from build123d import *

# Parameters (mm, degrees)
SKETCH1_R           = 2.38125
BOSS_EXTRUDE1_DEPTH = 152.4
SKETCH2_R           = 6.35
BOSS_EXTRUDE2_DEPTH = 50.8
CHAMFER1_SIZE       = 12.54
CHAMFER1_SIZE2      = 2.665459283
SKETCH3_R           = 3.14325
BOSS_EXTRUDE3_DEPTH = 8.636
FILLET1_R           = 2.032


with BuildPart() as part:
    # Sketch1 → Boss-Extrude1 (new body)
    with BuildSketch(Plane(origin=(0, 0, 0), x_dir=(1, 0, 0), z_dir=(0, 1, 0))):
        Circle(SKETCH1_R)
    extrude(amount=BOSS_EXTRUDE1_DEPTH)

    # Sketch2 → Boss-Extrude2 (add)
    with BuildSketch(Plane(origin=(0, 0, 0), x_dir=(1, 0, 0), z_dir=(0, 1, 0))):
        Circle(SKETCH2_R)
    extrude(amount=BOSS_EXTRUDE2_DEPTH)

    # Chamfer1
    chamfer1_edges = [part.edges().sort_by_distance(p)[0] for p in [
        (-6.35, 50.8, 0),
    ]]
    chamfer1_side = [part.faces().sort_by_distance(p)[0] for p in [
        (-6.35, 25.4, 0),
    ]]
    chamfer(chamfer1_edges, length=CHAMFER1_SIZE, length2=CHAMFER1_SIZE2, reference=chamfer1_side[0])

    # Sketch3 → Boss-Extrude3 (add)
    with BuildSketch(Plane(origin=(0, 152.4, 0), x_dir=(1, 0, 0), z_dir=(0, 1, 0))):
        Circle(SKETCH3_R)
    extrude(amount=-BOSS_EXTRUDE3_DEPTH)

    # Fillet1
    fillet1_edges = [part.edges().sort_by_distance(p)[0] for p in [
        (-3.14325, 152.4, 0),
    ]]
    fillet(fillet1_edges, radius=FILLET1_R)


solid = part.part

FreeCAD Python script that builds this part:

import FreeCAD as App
import Part
import Sketcher
from FreeCAD import Vector
Q = App.Units.Quantity


def edges_at(feature, points):
    """Names of the edges that pass closest to the given points."""
    edges = feature.Shape.Edges
    near = lambda p: min(range(len(edges)), key=lambda i: edges[i].distToShape(Part.Vertex(*p))[0])
    return sorted({f"Edge{near(p) + 1}" for p in points})

doc = App.newDocument("Part")
body = doc.addObject("PartDesign::Body", "Body")

sketch1 = body.newObject("Sketcher::SketchObject", "Sketch")
sketch1.AttachmentSupport = (doc.getObject("XZ_Plane"), [""])
sketch1.MapMode = "FlatFace"
sketch1.addGeometry(Part.Circle(Vector(0, 0, 0), Vector(0, 0, 1), 2.38125), False)
sketch1.addConstraint([
    Sketcher.Constraint("Coincident", 0, 3, -1, 1),
    Sketcher.Constraint("Diameter", 0, Q("0.1875 in")),
])
pad1 = body.newObject("PartDesign::Pad", "Pad")
pad1.Profile = sketch1
pad1.Length = Q("6 in")
pad1.Reversed = True

sketch2 = body.newObject("Sketcher::SketchObject", "Sketch001")
sketch2.AttachmentSupport = (doc.getObject("XZ_Plane"), [""])
sketch2.MapMode = "FlatFace"
sketch2.addGeometry(Part.Circle(Vector(0, 0, 0), Vector(0, 0, 1), 6.35), False)
sketch2.addConstraint([
    Sketcher.Constraint("Coincident", 0, 3, -1, 1),
    Sketcher.Constraint("Diameter", 0, Q("0.5 in")),
])
pad2 = body.newObject("PartDesign::Pad", "Pad001")
pad2.Profile = sketch2
pad2.Length = Q("2 in")
pad2.Reversed = True
doc.recompute()

chamfer = body.newObject("PartDesign::Chamfer", "Chamfer")
chamfer.Base = (pad2, edges_at(pad2, [(-6.35, 50.8, 0)]))
chamfer.ChamferType = "Two distances"
chamfer.Size = 12.54
chamfer.Size2 = 2.665459

sketch3 = body.newObject("Sketcher::SketchObject", "Sketch002")
sketch3.AttachmentSupport = (doc.getObject("XZ_Plane"), [""])
sketch3.MapMode = "FlatFace"
sketch3.AttachmentOffset = App.Placement(Vector(0, 0, -6 * 25.4), App.Rotation())
sketch3.addGeometry(Part.Circle(Vector(0, 0, 0), Vector(0, 0, 1), 3.14325), False)
sketch3.addConstraint([
    Sketcher.Constraint("Coincident", 0, 3, -1, 1),
    Sketcher.Constraint("Diameter", 0, Q("0.2475 in")),
])
pad3 = body.newObject("PartDesign::Pad", "Pad002")
pad3.Profile = sketch3
pad3.Length = Q("0.34 in")
doc.recompute()

fillet = body.newObject("PartDesign::Fillet", "Fillet")
fillet.Base = (pad3, edges_at(pad3, [(-3.143, 152.4, 0)]))
fillet.Radius = Q("0.08 in")

doc.recompute()
